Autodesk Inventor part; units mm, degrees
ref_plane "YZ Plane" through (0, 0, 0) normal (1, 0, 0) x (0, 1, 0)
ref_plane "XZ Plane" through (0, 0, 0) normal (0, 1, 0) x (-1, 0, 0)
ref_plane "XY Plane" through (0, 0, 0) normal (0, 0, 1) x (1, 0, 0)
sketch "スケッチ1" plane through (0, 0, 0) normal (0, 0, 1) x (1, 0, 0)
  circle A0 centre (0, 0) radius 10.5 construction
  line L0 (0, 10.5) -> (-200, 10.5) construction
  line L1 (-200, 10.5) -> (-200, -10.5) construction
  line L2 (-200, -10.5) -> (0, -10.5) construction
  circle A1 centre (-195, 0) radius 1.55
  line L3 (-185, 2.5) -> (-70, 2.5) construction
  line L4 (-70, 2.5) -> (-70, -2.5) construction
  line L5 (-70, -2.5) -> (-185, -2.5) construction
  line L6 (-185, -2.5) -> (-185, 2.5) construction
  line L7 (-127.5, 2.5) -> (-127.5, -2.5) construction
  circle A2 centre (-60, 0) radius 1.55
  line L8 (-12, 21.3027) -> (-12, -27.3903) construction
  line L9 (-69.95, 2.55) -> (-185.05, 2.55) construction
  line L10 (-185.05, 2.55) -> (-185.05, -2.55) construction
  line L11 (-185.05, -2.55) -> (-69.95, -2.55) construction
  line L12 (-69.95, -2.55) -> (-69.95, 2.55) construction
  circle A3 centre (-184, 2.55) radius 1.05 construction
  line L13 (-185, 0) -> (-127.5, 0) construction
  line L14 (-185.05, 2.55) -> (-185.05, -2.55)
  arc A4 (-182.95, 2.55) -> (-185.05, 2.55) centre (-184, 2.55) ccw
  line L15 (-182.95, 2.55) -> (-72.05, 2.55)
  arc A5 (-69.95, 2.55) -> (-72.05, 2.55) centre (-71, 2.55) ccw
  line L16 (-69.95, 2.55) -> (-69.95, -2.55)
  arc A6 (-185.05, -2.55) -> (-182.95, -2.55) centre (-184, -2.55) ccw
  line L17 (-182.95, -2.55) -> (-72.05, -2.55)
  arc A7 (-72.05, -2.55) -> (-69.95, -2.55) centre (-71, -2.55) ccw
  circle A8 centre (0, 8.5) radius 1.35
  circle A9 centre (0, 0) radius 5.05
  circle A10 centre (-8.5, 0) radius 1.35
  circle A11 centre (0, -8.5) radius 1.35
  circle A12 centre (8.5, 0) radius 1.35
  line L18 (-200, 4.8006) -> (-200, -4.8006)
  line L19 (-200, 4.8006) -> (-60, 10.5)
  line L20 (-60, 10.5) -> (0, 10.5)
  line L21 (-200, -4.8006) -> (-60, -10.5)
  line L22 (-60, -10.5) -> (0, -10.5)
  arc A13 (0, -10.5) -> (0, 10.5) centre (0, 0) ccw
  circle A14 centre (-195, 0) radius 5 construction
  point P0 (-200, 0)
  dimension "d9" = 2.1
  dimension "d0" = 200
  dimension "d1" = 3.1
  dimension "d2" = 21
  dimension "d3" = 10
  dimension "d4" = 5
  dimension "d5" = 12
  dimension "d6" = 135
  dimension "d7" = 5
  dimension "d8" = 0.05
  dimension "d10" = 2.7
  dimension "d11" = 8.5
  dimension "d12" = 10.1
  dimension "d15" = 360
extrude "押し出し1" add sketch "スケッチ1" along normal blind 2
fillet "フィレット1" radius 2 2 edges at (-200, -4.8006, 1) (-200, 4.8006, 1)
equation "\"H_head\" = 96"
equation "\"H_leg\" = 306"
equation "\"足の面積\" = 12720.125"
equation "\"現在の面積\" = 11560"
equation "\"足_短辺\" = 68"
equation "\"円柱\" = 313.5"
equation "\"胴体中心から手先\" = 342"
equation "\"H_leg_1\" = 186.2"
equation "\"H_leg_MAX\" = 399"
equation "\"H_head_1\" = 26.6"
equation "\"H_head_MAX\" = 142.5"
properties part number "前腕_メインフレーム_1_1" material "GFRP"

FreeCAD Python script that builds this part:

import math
import FreeCAD as App
import Part
import Sketcher

V = App.Vector


def edges_at(feature, points):
    """Names of the edges that pass closest to the given points."""
    edges = feature.Shape.Edges
    near = lambda p: min(range(len(edges)), key=lambda i: edges[i].distToShape(Part.Vertex(*p))[0])
    return sorted({f"Edge{near(p) + 1}" for p in points})

doc = App.newDocument("Part")
body = doc.addObject("PartDesign::Body", "Body")

# Sketch on XY plane
sketch1 = body.newObject("Sketcher::SketchObject", "Sketch")
sketch1.AttachmentSupport = (doc.getObject("XY_Plane"), [""])
sketch1.MapMode = "FlatFace"
sketch1.addGeometry([
    Part.LineSegment(V(-60, 10.5, 0), V(-200, 4.8, 0)),  # 0
    Part.LineSegment(V(-200, 4.8, 0), V(-200, -4.8, 0)),  # 1
    Part.LineSegment(V(-200, -4.8, 0), V(-60, -10.5, 0)),  # 2
    Part.LineSegment(V(-60, -10.5, 0), V(0, -10.5, 0)),  # 3
    Part.ArcOfCircle(Part.Circle(V(0, 0, 0), V(0, 0, 1), 10.5), math.radians(-90), math.radians(90)),  # 4
    Part.LineSegment(V(0, 10.5, 0), V(-60, 10.5, 0)),  # 5
    Part.Circle(V(0, -8.5, 0), V(0, 0, 1), 1.4),  # 6
    Part.Circle(V(-195, 0, 0), V(0, 0, 1), 1.6),  # 7
    Part.LineSegment(V(-185.1, -2.5, 0), V(-185.1, 2.5, 0)),  # 8
    Part.ArcOfCircle(Part.Circle(V(-184, 2.5, 0), V(0, 0, 1), 1.1), math.radians(0), math.radians(180)),  # 9
    Part.LineSegment(V(-182.9, 2.5, 0), V(-72, 2.5, 0)),  # 10
    Part.ArcOfCircle(Part.Circle(V(-71, 2.5, 0), V(0, 0, 1), 1), math.radians(0), math.radians(180)),  # 11
    Part.LineSegment(V(-70, 2.5, 0), V(-70, -2.5, 0)),  # 12
    Part.ArcOfCircle(Part.Circle(V(-71, -2.5, 0), V(0, 0, 1), 1), math.radians(180), math.radians(360)),  # 13
    Part.LineSegment(V(-72, -2.5, 0), V(-182.9, -2.5, 0)),  # 14
    Part.ArcOfCircle(Part.Circle(V(-184, -2.5, 0), V(0, 0, 1), 1.1), math.radians(180), math.radians(360)),  # 15
    Part.Circle(V(-60, 0, 0), V(0, 0, 1), 1.6),  # 16
    Part.Circle(V(-8.5, 0, 0), V(0, 0, 1), 1.4),  # 17
    Part.Circle(V(0, 0, 0), V(0, 0, 1), 5),  # 18
    Part.Circle(V(8.5, 0, 0), V(0, 0, 1), 1.4),  # 19
    Part.Circle(V(0, 8.5, 0), V(0, 0, 1), 1.4),  # 20
], False)
sketch1.addConstraint([
    Sketcher.Constraint("Coincident", 0, 2, 1, 1),
    Sketcher.Constraint("Coincident", 1, 2, 2, 1),
    Sketcher.Constraint("Coincident", 2, 2, 3, 1),
    Sketcher.Constraint("Tangent", 3, 2, 4, 1),
    Sketcher.Constraint("Tangent", 4, 2, 5, 1),
    Sketcher.Constraint("Coincident", 5, 2, 0, 1),
    Sketcher.Constraint("Tangent", 8, 2, 9, 2),
    Sketcher.Constraint("Coincident", 9, 1, 10, 1),
    Sketcher.Constraint("Coincident", 10, 2, 11, 2),
    Sketcher.Constraint("Tangent", 11, 1, 12, 1),
    Sketcher.Constraint("Tangent", 12, 2, 13, 2),
    Sketcher.Constraint("Coincident", 13, 1, 14, 1),
    Sketcher.Constraint("Coincident", 14, 2, 15, 2),
    Sketcher.Constraint("Tangent", 15, 1, 8, 1),
    Sketcher.Constraint("Vertical", 1),
    Sketcher.Constraint("Horizontal", 3),
    Sketcher.Constraint("Horizontal", 5),
    Sketcher.Constraint("Vertical", 8),
    Sketcher.Constraint("Horizontal", 10),
    Sketcher.Constraint("Vertical", 12),
    Sketcher.Constraint("Horizontal", 14),
    Sketcher.Constraint("Coincident", 4, 3, -1, 1),
    Sketcher.Constraint("Coincident", 18, 3, -1, 1),
    Sketcher.Constraint("Equal", 9, 11),
    Sketcher.Constraint("Equal", 11, 13),
    Sketcher.Constraint("Equal", 13, 15),
    Sketcher.Constraint("Equal", 7, 16),
    Sketcher.Constraint("Equal", 6, 17),
    Sketcher.Constraint("Equal", 17, 19),
    Sketcher.Constraint("Equal", 19, 20),
    Sketcher.Constraint("Symmetric", 17, 3, 19, 3, -1, 1),
    Sketcher.Constraint("Symmetric", 6, 3, 20, 3, -1, 1),
    Sketcher.Constraint("PointOnObject", 6, 3, -2),
    Sketcher.Constraint("PointOnObject", 7, 3, -1),
    Sketcher.Constraint("PointOnObject", 16, 3, -1),
    Sketcher.Constraint("PointOnObject", 17, 3, -1),
    Sketcher.Constraint("Horizontal", 9, 3, 11, 3),
    Sketcher.Constraint("Horizontal", 13, 3, 15, 3),
    Sketcher.Constraint("Horizontal", 8, 2, 9, 1),
    Sketcher.Constraint("Horizontal", 12, 2, 13, 1),
    Sketcher.Constraint("Vertical", 16, 3, 2, 2),
    Sketcher.Constraint("Vertical", 2, 2, 5, 2),
    Sketcher.Constraint("Equal", 0, 2),
    Sketcher.Constraint("Diameter", 6, 2.7),
    Sketcher.Constraint("Diameter", 7, 3.1),
    Sketcher.Constraint("Diameter", 18, 10.1),
    Sketcher.Constraint("Radius", 4, 10.5),
    Sketcher.Constraint("Radius", 9, 1.05),
    Sketcher.Constraint("DistanceX", 0, 2, -1, 1, 200.0),
    Sketcher.Constraint("DistanceX", 0, 2, 7, 3, 5.0),
    Sketcher.Constraint("DistanceY", 6, 3, -1, 1, 8.5),
    Sketcher.Constraint("DistanceX", 17, 3, -1, 1, 8.5),
    Sketcher.Constraint("DistanceX", 3, 1, 3, 2, 60.0),
    Sketcher.Constraint("DistanceX", 10, 1, 10, 2, 110.9),
    Sketcher.Constraint("DistanceY", 8, 1, 8, 2, 5.1),
    Sketcher.Constraint("DistanceX", 9, 3, -1, 1, 184.0),
    Sketcher.Constraint("DistanceY", -1, 1, 9, 3, 2.55),
    Sketcher.Constraint("Distance", 0, 140.116),
])
pad1 = body.newObject("PartDesign::Pad", "Pad")
pad1.Profile = sketch1
pad1.Length = 2
doc.recompute()

fillet = body.newObject("PartDesign::Fillet", "Fillet")
fillet.Base = (pad1, edges_at(pad1, [(-200, -4.801, 1), (-200, 4.801, 1)]))
fillet.Radius = 2

doc.recompute()
